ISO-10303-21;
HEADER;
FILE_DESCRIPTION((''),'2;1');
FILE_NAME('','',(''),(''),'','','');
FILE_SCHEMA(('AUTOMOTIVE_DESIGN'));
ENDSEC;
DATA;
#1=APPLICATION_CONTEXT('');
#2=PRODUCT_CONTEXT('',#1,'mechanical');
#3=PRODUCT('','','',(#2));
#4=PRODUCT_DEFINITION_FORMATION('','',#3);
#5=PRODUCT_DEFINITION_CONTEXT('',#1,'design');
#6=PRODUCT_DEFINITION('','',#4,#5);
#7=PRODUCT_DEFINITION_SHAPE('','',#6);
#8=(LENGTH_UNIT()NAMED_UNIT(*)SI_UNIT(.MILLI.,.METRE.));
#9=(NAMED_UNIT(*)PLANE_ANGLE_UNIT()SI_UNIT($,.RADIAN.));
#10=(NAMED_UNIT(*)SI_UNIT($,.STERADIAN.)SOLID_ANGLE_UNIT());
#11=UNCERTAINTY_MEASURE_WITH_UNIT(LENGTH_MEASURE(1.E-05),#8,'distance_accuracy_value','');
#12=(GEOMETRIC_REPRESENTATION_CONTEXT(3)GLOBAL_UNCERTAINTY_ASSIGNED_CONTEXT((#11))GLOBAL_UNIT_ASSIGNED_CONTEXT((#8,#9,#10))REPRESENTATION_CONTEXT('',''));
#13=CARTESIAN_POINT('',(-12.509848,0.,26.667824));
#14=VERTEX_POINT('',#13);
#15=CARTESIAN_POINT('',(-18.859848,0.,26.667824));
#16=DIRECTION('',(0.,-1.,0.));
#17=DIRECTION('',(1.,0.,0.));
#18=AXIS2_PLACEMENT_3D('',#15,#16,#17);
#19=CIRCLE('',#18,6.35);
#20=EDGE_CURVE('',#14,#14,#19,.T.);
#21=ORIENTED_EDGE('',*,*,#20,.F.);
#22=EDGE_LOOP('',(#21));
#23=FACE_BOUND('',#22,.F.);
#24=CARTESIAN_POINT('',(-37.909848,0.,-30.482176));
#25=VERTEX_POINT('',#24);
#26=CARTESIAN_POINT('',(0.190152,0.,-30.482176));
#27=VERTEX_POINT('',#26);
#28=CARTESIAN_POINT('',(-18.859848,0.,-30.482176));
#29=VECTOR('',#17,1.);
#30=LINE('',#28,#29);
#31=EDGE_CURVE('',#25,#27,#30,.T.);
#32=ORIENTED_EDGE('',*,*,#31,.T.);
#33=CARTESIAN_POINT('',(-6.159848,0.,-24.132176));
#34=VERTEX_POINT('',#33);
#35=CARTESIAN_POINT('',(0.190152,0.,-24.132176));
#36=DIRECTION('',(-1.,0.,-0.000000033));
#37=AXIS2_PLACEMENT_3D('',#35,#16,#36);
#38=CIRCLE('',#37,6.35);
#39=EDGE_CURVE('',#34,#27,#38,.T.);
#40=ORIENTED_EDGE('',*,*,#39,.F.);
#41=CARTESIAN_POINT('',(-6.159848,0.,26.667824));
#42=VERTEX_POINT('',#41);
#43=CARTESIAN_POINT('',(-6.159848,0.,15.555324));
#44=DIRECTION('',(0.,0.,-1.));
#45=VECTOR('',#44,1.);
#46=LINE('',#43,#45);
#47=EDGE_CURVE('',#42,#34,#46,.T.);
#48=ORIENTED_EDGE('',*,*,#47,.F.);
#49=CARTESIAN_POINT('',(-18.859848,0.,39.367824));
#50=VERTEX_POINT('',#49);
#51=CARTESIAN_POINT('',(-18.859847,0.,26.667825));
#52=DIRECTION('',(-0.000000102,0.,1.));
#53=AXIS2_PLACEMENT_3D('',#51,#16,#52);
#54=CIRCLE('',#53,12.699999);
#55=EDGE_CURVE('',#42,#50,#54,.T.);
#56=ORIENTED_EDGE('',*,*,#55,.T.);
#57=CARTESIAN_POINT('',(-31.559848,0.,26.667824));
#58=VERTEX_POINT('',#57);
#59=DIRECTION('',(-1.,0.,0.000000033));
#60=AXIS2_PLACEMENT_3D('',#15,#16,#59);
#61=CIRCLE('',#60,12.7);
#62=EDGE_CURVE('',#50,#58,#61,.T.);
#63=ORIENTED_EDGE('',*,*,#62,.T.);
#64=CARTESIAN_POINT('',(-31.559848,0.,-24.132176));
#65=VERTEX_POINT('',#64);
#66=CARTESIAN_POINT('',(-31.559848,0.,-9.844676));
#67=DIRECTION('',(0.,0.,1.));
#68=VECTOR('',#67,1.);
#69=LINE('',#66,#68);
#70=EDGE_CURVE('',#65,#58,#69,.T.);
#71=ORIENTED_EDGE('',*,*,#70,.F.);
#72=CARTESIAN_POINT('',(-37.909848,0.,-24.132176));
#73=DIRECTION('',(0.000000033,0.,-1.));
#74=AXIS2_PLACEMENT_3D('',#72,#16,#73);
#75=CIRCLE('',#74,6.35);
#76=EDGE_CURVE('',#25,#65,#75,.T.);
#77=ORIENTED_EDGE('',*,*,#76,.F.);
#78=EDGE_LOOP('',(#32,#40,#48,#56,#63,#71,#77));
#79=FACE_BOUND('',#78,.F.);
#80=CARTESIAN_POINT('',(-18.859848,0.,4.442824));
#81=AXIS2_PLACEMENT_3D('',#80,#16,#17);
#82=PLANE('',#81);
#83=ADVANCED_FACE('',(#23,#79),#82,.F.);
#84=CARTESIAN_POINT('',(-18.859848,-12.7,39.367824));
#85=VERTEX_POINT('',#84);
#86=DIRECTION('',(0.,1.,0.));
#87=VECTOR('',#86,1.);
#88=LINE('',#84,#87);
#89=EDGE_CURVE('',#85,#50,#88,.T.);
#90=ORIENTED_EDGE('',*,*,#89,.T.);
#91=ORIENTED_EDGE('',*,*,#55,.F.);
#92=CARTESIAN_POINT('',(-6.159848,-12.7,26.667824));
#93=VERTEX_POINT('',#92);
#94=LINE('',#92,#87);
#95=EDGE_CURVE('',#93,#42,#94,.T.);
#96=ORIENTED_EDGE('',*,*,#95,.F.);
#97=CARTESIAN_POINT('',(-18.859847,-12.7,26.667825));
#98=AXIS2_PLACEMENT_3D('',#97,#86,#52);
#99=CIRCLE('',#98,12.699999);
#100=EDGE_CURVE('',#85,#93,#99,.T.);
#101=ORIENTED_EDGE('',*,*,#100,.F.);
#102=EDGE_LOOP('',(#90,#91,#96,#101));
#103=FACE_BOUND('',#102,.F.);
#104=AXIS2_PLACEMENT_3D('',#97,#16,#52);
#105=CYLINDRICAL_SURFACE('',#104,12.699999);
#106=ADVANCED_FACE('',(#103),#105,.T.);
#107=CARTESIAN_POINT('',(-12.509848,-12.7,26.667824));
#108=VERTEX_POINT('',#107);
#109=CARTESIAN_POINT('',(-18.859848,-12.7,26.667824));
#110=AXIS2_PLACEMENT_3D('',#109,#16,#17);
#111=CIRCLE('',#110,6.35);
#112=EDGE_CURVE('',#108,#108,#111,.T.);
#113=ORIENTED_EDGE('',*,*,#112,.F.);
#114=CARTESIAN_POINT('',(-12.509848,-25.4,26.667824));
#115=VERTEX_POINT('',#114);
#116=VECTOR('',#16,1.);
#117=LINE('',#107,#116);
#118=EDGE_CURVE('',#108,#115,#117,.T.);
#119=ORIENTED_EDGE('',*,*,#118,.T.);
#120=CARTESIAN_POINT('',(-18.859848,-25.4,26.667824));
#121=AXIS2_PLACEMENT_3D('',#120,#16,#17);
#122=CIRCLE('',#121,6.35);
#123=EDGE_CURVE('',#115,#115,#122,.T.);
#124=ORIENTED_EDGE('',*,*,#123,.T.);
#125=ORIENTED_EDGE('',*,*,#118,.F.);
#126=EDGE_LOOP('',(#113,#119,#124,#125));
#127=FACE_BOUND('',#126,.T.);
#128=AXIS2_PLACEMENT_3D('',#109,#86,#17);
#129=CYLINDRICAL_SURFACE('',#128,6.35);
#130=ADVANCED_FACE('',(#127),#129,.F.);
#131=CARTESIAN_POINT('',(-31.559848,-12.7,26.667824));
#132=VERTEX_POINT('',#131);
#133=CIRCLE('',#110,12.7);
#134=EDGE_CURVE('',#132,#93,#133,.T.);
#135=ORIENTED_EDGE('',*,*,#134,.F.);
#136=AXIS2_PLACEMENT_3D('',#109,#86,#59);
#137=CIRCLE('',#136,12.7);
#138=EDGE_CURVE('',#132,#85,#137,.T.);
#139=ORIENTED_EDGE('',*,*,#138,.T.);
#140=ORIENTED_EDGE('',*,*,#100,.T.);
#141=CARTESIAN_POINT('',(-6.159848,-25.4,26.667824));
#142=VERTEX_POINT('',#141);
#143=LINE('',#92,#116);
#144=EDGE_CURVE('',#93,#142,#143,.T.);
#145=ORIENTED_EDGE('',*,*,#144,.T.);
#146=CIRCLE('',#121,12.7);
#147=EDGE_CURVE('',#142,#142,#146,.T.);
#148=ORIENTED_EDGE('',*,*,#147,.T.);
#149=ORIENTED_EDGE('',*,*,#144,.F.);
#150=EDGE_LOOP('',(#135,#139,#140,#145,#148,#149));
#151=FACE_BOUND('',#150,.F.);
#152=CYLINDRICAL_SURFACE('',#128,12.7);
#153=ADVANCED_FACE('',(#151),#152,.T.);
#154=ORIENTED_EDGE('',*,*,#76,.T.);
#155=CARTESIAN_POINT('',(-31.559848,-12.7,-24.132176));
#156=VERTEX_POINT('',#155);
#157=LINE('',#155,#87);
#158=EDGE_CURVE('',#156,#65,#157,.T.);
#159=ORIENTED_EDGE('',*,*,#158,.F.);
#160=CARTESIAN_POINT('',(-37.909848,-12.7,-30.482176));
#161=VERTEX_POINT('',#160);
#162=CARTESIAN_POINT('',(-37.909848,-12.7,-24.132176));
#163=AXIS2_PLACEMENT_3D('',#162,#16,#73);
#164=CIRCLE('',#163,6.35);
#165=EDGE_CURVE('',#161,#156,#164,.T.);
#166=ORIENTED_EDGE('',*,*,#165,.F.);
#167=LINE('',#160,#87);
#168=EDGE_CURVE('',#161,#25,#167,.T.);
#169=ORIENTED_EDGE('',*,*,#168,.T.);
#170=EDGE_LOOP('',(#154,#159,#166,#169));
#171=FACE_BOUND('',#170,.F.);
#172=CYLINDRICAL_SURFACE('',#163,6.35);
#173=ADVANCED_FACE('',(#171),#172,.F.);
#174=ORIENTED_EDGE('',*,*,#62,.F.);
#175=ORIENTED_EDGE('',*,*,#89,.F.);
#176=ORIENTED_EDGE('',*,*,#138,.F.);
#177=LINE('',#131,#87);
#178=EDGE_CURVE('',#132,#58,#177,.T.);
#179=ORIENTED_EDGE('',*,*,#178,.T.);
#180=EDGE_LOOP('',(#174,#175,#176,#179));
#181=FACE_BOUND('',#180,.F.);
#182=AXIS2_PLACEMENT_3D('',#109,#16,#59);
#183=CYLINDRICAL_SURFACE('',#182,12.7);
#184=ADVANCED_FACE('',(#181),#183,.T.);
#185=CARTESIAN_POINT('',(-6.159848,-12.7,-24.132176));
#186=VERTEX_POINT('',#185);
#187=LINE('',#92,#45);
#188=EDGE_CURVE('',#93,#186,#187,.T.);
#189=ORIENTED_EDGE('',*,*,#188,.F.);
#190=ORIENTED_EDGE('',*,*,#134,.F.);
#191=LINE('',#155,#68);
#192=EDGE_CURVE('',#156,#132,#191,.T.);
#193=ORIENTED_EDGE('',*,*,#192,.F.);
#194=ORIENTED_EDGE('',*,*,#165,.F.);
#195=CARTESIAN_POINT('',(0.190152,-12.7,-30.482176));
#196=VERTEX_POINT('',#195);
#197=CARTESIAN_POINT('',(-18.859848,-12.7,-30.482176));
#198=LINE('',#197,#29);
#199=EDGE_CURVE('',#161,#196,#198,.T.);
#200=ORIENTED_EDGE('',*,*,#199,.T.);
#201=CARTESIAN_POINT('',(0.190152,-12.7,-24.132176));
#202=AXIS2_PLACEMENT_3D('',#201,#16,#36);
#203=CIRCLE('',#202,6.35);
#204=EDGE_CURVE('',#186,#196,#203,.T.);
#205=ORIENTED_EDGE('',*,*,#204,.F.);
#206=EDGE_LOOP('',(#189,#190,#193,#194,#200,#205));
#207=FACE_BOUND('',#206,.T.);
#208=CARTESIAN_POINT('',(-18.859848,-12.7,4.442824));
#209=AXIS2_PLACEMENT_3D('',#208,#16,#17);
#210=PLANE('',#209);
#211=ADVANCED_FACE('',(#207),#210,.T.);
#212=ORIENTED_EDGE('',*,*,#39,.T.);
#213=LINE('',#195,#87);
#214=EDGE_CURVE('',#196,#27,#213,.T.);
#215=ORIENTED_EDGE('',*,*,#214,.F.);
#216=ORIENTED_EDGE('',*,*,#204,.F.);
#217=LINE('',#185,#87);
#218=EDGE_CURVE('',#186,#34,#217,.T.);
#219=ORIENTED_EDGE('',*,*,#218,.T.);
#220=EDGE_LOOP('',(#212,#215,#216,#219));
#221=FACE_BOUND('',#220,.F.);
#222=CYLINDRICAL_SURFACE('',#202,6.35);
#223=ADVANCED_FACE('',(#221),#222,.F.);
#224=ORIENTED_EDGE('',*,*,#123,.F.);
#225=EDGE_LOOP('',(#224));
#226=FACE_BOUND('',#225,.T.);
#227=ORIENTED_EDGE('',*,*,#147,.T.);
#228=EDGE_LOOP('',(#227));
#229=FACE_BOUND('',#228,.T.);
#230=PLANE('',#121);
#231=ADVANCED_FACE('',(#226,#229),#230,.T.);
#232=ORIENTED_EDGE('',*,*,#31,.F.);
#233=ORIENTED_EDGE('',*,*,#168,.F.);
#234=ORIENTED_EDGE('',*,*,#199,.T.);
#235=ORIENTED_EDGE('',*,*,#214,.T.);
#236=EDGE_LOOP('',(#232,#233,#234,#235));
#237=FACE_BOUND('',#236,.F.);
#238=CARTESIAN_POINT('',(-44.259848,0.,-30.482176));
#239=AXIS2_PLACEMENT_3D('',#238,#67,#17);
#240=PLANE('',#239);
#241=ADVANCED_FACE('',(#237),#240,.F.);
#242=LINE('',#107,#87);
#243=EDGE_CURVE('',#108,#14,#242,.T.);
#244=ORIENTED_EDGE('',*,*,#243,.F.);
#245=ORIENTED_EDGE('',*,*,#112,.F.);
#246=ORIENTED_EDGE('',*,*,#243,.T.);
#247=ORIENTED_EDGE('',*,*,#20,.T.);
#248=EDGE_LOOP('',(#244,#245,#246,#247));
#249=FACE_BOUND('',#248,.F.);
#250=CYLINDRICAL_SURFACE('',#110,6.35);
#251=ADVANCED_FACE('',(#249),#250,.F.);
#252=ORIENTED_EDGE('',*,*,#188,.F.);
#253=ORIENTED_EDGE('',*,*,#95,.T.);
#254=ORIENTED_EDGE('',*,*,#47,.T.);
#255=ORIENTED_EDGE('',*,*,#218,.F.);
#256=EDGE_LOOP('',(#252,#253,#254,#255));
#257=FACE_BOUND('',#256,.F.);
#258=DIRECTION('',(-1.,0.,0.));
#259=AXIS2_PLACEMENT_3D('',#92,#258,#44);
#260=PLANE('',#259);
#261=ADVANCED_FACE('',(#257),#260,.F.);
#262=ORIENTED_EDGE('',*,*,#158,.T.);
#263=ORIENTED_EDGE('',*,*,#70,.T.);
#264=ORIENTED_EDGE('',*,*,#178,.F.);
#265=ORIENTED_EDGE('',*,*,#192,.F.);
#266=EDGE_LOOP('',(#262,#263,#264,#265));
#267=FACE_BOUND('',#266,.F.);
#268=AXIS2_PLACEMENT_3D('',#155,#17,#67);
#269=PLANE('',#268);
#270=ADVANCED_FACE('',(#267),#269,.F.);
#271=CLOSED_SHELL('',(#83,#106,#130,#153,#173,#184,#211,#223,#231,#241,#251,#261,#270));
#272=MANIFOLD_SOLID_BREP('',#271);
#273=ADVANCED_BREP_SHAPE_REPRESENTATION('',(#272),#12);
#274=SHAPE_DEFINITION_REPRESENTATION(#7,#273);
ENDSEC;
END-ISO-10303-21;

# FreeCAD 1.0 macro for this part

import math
import FreeCAD as App
import Part
import Sketcher
Q = App.Units.Quantity


def add_polygon(sketch, points):
    """Adds a closed chain of lines whose ends are joined by coincident constraints."""
    first, n = sketch.GeometryCount, len(points)
    for a, b in zip(points, points[1:] + points[:1]):
        sketch.addGeometry(Part.LineSegment(App.Vector(*a, 0), App.Vector(*b, 0)), False)
    for i in range(n):
        sketch.addConstraint(Sketcher.Constraint("Coincident", first + i, 2, first + (i + 1) % n, 1))

doc = App.newDocument("Part")
params = doc.addObject("Spreadsheet::Sheet", "Params")
for row, (alias, value) in enumerate([
    ("sketch1_width", "2 in"),
    ("sketch1_height", "2.75 in"),
    ("pad1_length", "0.5 in"),
    ("sketch2_diameter", "0.5 in"),
    ("sketch2_radius", "0.5 in"),
    ("sketch2_width", "1 in"),
    ("sketch2_height", "2 in"),
    ("pocket1_length", "1.25 in"),
    ("sketch3_diameter", "1 in"),
    ("sketch3_diameter2", "0.5 in"),
    ("pad2_length", "0.5 in"),
], start=1):
    params.set(f"A{row}", alias)
    params.set(f"B{row}", "=" + value)
    params.setAlias(f"B{row}", alias)

body = doc.addObject("PartDesign::Body", "Body")

# Sketch on XZ plane
sketch1 = body.newObject("Sketcher::SketchObject", "Sketch")
sketch1.AttachmentSupport = (doc.getObject("XZ_Plane"), [""])
sketch1.MapMode = "FlatFace"
add_polygon(sketch1, [(-44, 39), (-44, -30), (7, -30), (7, 39)])  # lines 0-3
sketch1.addConstraint(Sketcher.Constraint("Vertical", 0))
sketch1.addConstraint(Sketcher.Constraint("Horizontal", 1))
sketch1.addConstraint(Sketcher.Constraint("Vertical", 2))
sketch1.addConstraint(Sketcher.Constraint("Horizontal", 3))
sketch1.addConstraint(Sketcher.Constraint("DistanceX", 1, 1, 1, 2, Q("2 in")))
sketch1.addConstraint(Sketcher.Constraint("DistanceY", 0, 2, 0, 1, Q("2.75 in")))
sketch1.addConstraint(Sketcher.Constraint("DistanceX", 0, 2, -1, 1, 44.259848))
sketch1.addConstraint(Sketcher.Constraint("DistanceY", 0, 2, -1, 1, 30.482176))
sketch1.setExpression("Constraints[8]", "Params.sketch1_width")
sketch1.setExpression("Constraints[9]", "Params.sketch1_height")
pad1 = body.newObject("PartDesign::Pad", "Pad")
pad1.Profile = sketch1
pad1.setExpression("Length", "Params.pad1_length")

# Sketch on XZ plane
sketch2 = body.newObject("Sketcher::SketchObject", "Sketch001")
sketch2.AttachmentSupport = (doc.getObject("XZ_Plane"), [""])
sketch2.MapMode = "FlatFace"
sketch2.AttachmentOffset = App.Placement(App.Vector(0, 0, 0.5 * 25.4), App.Rotation())
sketch2.addGeometry(Part.LineSegment(App.Vector(-32, -24, 0), App.Vector(-32, 27, 0)), False)
sketch2.addGeometry(Part.ArcOfCircle(Part.Circle(App.Vector(-19, 27, 0), App.Vector(0, 0, 1), 13), math.radians(90), math.radians(180)), False)
sketch2.addGeometry(Part.LineSegment(App.Vector(-19, 39, 0), App.Vector(-44, 39, 0)), False)
sketch2.addGeometry(Part.LineSegment(App.Vector(-44, 39, 0), App.Vector(-44, -30, 0)), False)
sketch2.addGeometry(Part.LineSegment(App.Vector(-44, -30, 0), App.Vector(-38, -30, 0)), False)
sketch2.addGeometry(Part.ArcOfCircle(Part.Circle(App.Vector(-38, -24, 0), App.Vector(0, 0, 1), 6), math.radians(-90), math.radians(0)), False)
sketch2.addGeometry(Part.Circle(App.Vector(-19, 27, 0), App.Vector(0, 0, 1), 6), False)
sketch2.addGeometry(Part.ArcOfCircle(Part.Circle(App.Vector(-19, 27, 0), App.Vector(0, 0, 1), 13), math.radians(0), math.radians(90)), False)
sketch2.addGeometry(Part.LineSegment(App.Vector(-6, 27, 0), App.Vector(-6, -24, 0)), False)
sketch2.addGeometry(Part.ArcOfCircle(Part.Circle(App.Vector(0, -24, 0), App.Vector(0, 0, 1), 6), math.radians(-180), math.radians(-90)), False)
sketch2.addGeometry(Part.LineSegment(App.Vector(0, -30, 0), App.Vector(7, -30, 0)), False)
sketch2.addGeometry(Part.LineSegment(App.Vector(7, -30, 0), App.Vector(7, 39, 0)), False)
sketch2.addGeometry(Part.LineSegment(App.Vector(7, 39, 0), App.Vector(-19, 39, 0)), False)
sketch2.addConstraint(Sketcher.Constraint("Tangent", 0, 2, 1, 2))
sketch2.addConstraint(Sketcher.Constraint("Tangent", 1, 1, 2, 1))
sketch2.addConstraint(Sketcher.Constraint("Coincident", 2, 2, 3, 1))
sketch2.addConstraint(Sketcher.Constraint("Coincident", 3, 2, 4, 1))
sketch2.addConstraint(Sketcher.Constraint("Tangent", 4, 2, 5, 1))
sketch2.addConstraint(Sketcher.Constraint("Tangent", 5, 2, 0, 1))
sketch2.addConstraint(Sketcher.Constraint("Tangent", 7, 1, 8, 1))
sketch2.addConstraint(Sketcher.Constraint("Tangent", 8, 2, 9, 1))
sketch2.addConstraint(Sketcher.Constraint("Tangent", 9, 2, 10, 1))
sketch2.addConstraint(Sketcher.Constraint("Coincident", 10, 2, 11, 1))
sketch2.addConstraint(Sketcher.Constraint("Coincident", 11, 2, 12, 1))
sketch2.addConstraint(Sketcher.Constraint("Tangent", 12, 2, 7, 2))
sketch2.addConstraint(Sketcher.Constraint("Vertical", 0))
sketch2.addConstraint(Sketcher.Constraint("Horizontal", 2))
sketch2.addConstraint(Sketcher.Constraint("Vertical", 3))
sketch2.addConstraint(Sketcher.Constraint("Horizontal", 4))
sketch2.addConstraint(Sketcher.Constraint("Vertical", 8))
sketch2.addConstraint(Sketcher.Constraint("Horizontal", 10))
sketch2.addConstraint(Sketcher.Constraint("Vertical", 11))
sketch2.addConstraint(Sketcher.Constraint("Horizontal", 12))
sketch2.addConstraint(Sketcher.Constraint("Coincident", 6, 3, 1, 3))
sketch2.addConstraint(Sketcher.Constraint("Coincident", 7, 3, 1, 3))
sketch2.addConstraint(Sketcher.Constraint("Equal", 5, 6))
sketch2.addConstraint(Sketcher.Constraint("Equal", 1, 7))
sketch2.addConstraint(Sketcher.Constraint("Equal", 6, 9))
sketch2.addConstraint(Sketcher.Constraint("Horizontal", 5, 3, 9, 3))
sketch2.addConstraint(Sketcher.Constraint("Equal", 4, 10))
sketch2.addConstraint(Sketcher.Constraint("Diameter", 6, Q("0.5 in")))
sketch2.addConstraint(Sketcher.Constraint("Radius", 1, Q("0.5 in")))
sketch2.addConstraint(Sketcher.Constraint("DistanceX", 2, 2, 2, 1, Q("1 in")))
sketch2.addConstraint(Sketcher.Constraint("DistanceY", 0, 1, 0, 2, Q("2 in")))
sketch2.addConstraint(Sketcher.Constraint("DistanceX", 5, 3, -1, 1, 37.909848))
sketch2.addConstraint(Sketcher.Constraint("DistanceY", -1, 1, 1, 3, 26.667824))
sketch2.setExpression("Constraints[27]", "Params.sketch2_diameter")
sketch2.setExpression("Constraints[28]", "Params.sketch2_radius")
sketch2.setExpression("Constraints[29]", "Params.sketch2_width")
sketch2.setExpression("Constraints[30]", "Params.sketch2_height")
pocket1 = body.newObject("PartDesign::Pocket", "Pocket")
pocket1.Profile = sketch2
pocket1.setExpression("Length", "Params.pocket1_length")

# Sketch on XZ plane
sketch3 = body.newObject("Sketcher::SketchObject", "Sketch002")
sketch3.AttachmentSupport = (doc.getObject("XZ_Plane"), [""])
sketch3.MapMode = "FlatFace"
sketch3.AttachmentOffset = App.Placement(App.Vector(0, 0, 0.5 * 25.4), App.Rotation())
sketch3.addGeometry(Part.Circle(App.Vector(-19, 27, 0), App.Vector(0, 0, 1), 13), False)
sketch3.addGeometry(Part.Circle(App.Vector(-19, 27, 0), App.Vector(0, 0, 1), 6), False)
sketch3.addConstraint(Sketcher.Constraint("Coincident", 1, 3, 0, 3))
sketch3.addConstraint(Sketcher.Constraint("Diameter", 0, Q("1 in")))
sketch3.addConstraint(Sketcher.Constraint("Diameter", 1, Q("0.5 in")))
sketch3.addConstraint(Sketcher.Constraint("DistanceX", 0, 3, -1, 1, 18.859848))
sketch3.addConstraint(Sketcher.Constraint("DistanceY", -1, 1, 0, 3, 26.667824))
sketch3.setExpression("Constraints[1]", "Params.sketch3_diameter")
sketch3.setExpression("Constraints[2]", "Params.sketch3_diameter2")
pad2 = body.newObject("PartDesign::Pad", "Pad001")
pad2.Profile = sketch3
pad2.setExpression("Length", "Params.pad2_length")

doc.recompute()
